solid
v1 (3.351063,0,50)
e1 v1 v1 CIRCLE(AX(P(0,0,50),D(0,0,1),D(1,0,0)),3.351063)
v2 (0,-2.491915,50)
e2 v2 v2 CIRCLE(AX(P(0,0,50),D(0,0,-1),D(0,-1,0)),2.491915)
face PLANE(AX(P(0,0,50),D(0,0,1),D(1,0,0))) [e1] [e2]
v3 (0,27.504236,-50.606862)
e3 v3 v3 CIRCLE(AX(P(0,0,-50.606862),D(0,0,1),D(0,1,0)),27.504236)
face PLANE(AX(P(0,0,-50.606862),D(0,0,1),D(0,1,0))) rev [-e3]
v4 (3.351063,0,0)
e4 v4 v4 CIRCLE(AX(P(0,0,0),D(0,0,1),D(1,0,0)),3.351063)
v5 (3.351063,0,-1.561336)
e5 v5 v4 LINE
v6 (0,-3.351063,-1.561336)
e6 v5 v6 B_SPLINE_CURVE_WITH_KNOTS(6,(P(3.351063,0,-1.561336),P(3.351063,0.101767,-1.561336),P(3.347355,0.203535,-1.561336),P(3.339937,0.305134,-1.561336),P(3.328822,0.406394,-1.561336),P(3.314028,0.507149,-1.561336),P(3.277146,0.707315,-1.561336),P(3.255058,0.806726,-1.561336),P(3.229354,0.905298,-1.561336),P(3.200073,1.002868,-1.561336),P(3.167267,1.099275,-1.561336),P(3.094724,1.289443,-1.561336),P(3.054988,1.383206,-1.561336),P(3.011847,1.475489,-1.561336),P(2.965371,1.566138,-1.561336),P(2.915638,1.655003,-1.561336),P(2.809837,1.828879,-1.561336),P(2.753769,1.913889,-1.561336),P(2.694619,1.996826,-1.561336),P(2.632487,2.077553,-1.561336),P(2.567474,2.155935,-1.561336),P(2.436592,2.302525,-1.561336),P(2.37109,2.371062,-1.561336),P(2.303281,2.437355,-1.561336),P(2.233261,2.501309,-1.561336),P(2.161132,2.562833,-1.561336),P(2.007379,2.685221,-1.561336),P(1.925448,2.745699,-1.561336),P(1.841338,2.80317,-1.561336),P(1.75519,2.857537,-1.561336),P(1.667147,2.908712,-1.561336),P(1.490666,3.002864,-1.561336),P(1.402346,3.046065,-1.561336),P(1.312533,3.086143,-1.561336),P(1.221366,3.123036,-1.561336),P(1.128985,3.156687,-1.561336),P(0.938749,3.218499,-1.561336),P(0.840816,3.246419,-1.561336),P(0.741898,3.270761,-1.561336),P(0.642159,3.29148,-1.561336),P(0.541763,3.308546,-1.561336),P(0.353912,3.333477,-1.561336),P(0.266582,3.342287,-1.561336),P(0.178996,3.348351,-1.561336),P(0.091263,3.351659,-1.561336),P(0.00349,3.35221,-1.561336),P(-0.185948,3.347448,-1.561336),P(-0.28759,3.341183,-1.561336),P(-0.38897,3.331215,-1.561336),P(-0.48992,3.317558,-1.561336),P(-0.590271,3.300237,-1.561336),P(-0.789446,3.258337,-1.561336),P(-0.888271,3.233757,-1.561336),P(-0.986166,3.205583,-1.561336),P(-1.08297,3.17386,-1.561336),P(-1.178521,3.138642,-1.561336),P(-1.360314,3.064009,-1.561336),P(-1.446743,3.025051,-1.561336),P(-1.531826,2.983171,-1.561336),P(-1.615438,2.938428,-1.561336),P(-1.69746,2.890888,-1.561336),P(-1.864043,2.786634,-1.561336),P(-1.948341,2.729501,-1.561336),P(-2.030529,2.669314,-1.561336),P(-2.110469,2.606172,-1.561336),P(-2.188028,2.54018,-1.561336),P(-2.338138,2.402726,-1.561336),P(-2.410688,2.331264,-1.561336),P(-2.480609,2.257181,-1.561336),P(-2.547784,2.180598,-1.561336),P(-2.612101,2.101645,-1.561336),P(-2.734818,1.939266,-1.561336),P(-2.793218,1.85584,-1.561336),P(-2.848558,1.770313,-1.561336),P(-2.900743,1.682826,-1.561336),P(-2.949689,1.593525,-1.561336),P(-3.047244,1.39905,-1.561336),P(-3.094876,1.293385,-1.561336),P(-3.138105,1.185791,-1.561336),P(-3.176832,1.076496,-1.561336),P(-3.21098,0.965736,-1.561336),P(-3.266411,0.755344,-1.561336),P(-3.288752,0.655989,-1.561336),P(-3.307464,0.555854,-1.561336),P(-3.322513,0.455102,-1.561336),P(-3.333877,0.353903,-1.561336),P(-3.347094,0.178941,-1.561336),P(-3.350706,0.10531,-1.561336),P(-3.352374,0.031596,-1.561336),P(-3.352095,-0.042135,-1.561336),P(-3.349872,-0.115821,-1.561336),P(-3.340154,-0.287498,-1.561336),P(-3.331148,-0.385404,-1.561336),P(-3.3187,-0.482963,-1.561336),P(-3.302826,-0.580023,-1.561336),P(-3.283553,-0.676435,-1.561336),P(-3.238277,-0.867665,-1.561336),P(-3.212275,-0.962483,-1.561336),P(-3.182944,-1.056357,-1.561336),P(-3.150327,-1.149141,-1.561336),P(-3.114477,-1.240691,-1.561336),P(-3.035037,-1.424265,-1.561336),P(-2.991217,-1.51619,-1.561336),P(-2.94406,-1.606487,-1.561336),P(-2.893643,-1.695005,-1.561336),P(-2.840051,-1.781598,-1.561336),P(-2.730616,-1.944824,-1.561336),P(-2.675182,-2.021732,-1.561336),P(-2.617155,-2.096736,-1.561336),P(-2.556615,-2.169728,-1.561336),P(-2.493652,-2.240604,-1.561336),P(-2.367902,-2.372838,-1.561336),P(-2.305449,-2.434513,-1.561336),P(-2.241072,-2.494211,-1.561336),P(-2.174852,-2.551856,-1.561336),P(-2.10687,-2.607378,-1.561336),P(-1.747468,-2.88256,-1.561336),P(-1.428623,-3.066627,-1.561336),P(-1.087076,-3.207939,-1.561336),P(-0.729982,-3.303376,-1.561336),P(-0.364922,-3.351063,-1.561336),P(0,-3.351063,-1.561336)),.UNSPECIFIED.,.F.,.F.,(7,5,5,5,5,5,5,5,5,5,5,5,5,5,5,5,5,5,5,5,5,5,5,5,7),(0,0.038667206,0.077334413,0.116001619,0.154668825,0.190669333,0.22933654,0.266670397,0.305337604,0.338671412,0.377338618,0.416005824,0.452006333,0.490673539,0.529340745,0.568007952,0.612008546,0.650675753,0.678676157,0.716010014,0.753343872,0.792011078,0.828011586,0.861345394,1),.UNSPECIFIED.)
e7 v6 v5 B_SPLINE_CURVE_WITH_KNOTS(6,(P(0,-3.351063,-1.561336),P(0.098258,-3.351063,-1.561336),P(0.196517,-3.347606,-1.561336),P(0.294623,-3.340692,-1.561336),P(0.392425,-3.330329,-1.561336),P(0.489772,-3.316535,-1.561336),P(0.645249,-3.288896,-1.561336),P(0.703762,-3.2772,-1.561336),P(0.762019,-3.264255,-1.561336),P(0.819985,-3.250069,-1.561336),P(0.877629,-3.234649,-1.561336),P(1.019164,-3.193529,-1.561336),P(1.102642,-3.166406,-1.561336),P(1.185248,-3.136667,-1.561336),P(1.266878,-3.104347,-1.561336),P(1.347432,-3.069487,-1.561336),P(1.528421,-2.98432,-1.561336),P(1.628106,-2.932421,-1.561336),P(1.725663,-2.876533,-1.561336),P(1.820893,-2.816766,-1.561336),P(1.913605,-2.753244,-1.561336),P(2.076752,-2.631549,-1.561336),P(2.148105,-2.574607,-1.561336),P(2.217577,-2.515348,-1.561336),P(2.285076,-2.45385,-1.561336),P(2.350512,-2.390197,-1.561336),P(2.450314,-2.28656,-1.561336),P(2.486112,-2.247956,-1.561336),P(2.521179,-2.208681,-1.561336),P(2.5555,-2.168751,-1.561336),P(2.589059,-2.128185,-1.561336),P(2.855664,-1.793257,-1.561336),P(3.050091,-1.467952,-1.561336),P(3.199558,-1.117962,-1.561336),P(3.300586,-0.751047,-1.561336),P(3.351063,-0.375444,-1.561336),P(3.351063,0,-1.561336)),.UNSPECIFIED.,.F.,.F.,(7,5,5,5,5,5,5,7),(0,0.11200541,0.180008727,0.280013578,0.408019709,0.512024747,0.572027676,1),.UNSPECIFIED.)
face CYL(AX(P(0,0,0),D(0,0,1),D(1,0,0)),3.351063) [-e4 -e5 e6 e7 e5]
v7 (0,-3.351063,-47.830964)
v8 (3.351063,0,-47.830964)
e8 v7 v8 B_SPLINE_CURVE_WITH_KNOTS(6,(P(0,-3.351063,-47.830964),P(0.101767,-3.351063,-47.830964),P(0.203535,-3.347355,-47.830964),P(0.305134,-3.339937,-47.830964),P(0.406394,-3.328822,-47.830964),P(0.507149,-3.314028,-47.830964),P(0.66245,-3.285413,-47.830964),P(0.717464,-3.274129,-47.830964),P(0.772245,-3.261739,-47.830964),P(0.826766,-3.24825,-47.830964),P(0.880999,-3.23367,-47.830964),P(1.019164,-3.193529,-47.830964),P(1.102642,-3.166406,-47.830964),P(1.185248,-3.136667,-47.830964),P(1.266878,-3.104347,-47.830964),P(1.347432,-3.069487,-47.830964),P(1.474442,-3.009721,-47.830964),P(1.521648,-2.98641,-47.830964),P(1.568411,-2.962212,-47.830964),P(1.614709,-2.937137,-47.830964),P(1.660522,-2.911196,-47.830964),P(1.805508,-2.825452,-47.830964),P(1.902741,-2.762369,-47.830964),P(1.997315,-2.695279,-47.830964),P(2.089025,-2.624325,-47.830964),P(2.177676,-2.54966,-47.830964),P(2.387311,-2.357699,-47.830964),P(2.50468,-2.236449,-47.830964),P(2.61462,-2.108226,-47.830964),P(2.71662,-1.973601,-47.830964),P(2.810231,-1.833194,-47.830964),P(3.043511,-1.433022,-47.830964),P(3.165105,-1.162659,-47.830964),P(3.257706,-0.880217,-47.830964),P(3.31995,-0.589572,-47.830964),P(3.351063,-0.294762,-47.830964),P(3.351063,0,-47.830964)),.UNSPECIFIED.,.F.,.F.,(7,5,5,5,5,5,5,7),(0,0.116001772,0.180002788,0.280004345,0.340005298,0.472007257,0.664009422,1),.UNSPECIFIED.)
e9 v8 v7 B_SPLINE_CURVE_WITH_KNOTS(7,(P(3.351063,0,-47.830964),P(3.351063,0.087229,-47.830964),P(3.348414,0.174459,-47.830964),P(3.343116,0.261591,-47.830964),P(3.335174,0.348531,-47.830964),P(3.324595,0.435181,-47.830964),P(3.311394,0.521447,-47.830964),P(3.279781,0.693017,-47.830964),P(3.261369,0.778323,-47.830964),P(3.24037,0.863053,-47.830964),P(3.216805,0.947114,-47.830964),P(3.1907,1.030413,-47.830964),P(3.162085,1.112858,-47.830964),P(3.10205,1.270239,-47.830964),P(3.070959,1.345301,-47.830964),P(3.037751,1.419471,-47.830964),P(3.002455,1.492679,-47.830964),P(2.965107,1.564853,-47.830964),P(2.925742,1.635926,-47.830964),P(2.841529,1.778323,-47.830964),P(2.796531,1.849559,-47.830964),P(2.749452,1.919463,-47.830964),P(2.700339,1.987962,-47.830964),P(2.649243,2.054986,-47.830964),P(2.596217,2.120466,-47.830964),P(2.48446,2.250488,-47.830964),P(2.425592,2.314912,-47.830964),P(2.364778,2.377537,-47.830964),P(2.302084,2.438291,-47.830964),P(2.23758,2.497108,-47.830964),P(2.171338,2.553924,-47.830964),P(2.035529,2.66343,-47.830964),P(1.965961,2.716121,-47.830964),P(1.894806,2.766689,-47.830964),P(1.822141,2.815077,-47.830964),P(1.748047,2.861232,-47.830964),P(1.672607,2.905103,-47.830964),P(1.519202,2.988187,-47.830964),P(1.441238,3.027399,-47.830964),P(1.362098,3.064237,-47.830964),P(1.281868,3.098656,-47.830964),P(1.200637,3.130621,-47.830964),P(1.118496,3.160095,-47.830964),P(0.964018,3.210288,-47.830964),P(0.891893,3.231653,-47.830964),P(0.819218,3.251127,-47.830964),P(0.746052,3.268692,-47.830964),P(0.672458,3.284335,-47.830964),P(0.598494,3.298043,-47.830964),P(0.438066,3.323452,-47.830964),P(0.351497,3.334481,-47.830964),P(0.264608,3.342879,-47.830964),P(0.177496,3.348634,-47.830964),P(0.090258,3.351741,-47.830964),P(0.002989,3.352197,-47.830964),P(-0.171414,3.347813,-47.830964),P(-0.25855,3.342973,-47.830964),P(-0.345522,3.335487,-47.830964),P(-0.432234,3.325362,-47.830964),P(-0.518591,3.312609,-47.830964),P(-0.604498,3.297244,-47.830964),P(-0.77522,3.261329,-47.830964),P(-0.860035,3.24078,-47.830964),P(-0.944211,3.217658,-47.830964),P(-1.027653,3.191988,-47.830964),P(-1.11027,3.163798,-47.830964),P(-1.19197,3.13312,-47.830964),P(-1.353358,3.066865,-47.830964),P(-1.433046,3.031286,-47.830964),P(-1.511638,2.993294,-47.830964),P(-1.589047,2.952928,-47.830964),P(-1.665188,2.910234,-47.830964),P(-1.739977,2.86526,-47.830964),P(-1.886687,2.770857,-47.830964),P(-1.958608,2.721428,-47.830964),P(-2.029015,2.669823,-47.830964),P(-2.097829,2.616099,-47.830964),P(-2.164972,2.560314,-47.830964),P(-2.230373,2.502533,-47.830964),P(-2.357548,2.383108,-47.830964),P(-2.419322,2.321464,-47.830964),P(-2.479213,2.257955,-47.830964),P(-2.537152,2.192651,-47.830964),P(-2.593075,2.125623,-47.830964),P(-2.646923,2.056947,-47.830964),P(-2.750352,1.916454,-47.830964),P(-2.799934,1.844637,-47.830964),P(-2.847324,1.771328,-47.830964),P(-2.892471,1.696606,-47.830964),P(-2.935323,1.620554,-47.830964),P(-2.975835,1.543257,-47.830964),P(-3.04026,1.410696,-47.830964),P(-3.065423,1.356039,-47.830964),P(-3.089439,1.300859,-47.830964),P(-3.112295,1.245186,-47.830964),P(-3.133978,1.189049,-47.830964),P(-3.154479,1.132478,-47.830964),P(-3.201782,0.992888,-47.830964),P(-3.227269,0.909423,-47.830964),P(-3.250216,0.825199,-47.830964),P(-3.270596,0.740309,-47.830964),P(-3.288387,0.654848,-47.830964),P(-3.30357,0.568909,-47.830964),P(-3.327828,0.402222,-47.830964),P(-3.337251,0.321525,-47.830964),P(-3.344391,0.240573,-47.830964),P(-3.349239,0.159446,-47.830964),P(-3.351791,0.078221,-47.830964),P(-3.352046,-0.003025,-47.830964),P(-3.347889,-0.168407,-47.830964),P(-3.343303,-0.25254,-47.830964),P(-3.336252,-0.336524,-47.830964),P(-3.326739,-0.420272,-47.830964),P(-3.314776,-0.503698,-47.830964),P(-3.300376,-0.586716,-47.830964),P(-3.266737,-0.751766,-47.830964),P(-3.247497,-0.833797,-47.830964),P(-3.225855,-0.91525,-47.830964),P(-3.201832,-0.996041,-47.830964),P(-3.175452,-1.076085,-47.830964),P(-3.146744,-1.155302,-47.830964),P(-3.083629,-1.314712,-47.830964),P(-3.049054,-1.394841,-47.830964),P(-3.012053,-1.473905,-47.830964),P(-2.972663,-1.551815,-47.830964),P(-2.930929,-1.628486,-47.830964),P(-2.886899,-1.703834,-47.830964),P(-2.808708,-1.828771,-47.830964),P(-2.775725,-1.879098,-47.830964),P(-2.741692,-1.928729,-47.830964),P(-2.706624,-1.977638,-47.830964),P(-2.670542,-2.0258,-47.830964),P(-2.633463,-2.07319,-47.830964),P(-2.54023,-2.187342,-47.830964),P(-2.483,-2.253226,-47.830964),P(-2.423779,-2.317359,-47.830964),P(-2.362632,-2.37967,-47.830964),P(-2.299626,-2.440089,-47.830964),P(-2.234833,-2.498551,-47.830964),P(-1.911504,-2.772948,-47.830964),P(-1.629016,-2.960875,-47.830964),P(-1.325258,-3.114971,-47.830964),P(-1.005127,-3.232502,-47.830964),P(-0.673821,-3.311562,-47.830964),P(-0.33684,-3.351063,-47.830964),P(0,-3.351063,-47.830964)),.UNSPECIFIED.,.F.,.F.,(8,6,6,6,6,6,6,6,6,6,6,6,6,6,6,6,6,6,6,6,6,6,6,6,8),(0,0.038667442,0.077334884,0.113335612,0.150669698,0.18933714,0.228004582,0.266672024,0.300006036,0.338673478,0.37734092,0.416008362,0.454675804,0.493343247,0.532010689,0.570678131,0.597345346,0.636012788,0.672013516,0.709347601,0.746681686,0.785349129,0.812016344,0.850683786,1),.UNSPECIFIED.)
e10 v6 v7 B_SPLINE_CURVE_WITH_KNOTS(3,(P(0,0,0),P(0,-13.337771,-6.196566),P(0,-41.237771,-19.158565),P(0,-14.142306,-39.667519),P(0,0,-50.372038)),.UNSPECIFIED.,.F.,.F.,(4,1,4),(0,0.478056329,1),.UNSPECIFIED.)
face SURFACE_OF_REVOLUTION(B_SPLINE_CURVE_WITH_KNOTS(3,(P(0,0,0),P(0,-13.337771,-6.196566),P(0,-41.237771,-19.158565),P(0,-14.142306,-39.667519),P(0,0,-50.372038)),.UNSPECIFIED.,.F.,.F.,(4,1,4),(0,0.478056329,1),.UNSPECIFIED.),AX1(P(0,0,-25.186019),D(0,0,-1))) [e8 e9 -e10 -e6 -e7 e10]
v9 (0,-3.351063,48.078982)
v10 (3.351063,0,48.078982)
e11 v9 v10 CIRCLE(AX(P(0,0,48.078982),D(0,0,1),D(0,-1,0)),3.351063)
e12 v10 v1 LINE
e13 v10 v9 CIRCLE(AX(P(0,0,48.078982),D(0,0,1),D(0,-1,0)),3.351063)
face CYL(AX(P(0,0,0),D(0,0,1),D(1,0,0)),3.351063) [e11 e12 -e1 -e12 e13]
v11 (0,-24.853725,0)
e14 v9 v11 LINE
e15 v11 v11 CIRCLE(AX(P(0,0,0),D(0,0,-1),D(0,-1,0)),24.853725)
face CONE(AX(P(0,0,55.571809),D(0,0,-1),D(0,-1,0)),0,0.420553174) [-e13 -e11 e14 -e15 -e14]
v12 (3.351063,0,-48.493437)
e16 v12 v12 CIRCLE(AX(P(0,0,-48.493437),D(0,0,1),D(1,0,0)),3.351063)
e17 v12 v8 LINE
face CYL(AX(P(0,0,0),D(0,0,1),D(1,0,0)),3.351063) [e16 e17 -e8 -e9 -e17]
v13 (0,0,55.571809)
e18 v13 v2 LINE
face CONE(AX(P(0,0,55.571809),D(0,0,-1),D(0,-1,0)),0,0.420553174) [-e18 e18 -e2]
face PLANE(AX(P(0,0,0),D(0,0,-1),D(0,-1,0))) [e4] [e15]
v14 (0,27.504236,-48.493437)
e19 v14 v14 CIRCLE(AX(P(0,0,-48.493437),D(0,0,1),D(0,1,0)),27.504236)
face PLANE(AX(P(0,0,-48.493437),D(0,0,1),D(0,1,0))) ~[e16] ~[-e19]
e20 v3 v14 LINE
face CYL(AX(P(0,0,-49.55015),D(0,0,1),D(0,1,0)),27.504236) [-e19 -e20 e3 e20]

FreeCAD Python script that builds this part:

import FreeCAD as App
import Part
import Sketcher

V = App.Vector

doc = App.newDocument("Part")
params = doc.addObject("Spreadsheet::Sheet", "Params")
for row, (alias, value) in enumerate([
    ("pad1_length", "100 mm"),
    ("revolution_angle", "360 deg"),
    ("revolution2_angle", "360 deg"),
    ("revolution3_angle", "360 deg"),
], start=1):
    params.set(f"A{row}", alias)
    params.set(f"B{row}", "=" + value)
    params.setAlias(f"B{row}", alias)

body = doc.addObject("PartDesign::Body", "Body")

# Sketch on XY plane
sketch1 = body.newObject("Sketcher::SketchObject", "Sketch")
sketch1.AttachmentSupport = (doc.getObject("XY_Plane"), [""])
sketch1.MapMode = "FlatFace"
sketch1.addGeometry(Part.Circle(V(0, 0, 0), V(0, 0, 1), 3.4), False)
sketch1.addConstraint(Sketcher.Constraint("Coincident", 0, 3, -1, 1))
sketch1.addConstraint(Sketcher.Constraint("Diameter", 0, 6.702127))
pad1 = body.newObject("PartDesign::Pad", "Pad")
pad1.Profile = sketch1
pad1.setExpression("Length", "Params.pad1_length")
pad1.Midplane = True

# Sketch on YZ plane
sketch2 = body.newObject("Sketcher::SketchObject", "Sketch001")
sketch2.AttachmentSupport = (doc.getObject("YZ_Plane"), [""])
sketch2.MapMode = "FlatFace"
sketch2.addGeometry(Part.LineSegment(V(0, 0, 0), V(0, 56, 0)), False)
sketch2.addGeometry(Part.LineSegment(V(0, 56, 0), V(-25, 0, 0)), False)
sketch2.addGeometry(Part.LineSegment(V(-25, 0, 0), V(0, 0, 0)), False)
sketch2.addConstraint(Sketcher.Constraint("Coincident", 0, 2, 1, 1))
sketch2.addConstraint(Sketcher.Constraint("Coincident", 1, 2, 2, 1))
sketch2.addConstraint(Sketcher.Constraint("Coincident", 2, 2, 0, 1))
sketch2.addConstraint(Sketcher.Constraint("Vertical", 0))
sketch2.addConstraint(Sketcher.Constraint("Horizontal", 2))
sketch2.addConstraint(Sketcher.Constraint("Coincident", 2, 2, -1, 1))
sketch2.addConstraint(Sketcher.Constraint("DistanceY", 0, 1, 0, 2, 55.571809))
sketch2.addConstraint(Sketcher.Constraint("Distance", 1, 60.87638))
revolution = body.newObject("PartDesign::Revolution", "Revolution")
revolution.Profile = sketch2
revolution.ReferenceAxis = (sketch2, ["V_Axis"])
revolution.setExpression("Angle", "Params.revolution_angle")

# Sketch on YZ plane
sketch3 = body.newObject("Sketcher::SketchObject", "Sketch002")
sketch3.AttachmentSupport = (doc.getObject("YZ_Plane"), [""])
sketch3.MapMode = "FlatFace"
sketch3.addGeometry(Part.LineSegment(V(0, -50.372038, 0), V(0, 0, 0)), False)
sketch3.addGeometry(Part.BSplineCurve([V(0, 0, 0), V(-13.337771, -6.196566, 0), V(-41.237771, -19.158565, 0), V(-14.142306, -39.667519, 0), V(0, -50.372038, 0)], [4, 1, 4], [0, 0.478056329, 1], False, 3, [1, 1, 1, 1, 1], False), False)
sketch3.addConstraint(Sketcher.Constraint("Block", 1))
sketch3.addConstraint(Sketcher.Constraint("Coincident", 0, 1, 1, 2))
sketch3.addConstraint(Sketcher.Constraint("Coincident", 1, 1, 0, 2))
revolution2 = body.newObject("PartDesign::Revolution", "Revolution001")
revolution2.Profile = sketch3
revolution2.ReferenceAxis = (sketch3, ["V_Axis"])
revolution2.setExpression("Angle", "Params.revolution2_angle")

# Sketch on YZ plane
sketch4 = body.newObject("Sketcher::SketchObject", "Sketch003")
sketch4.AttachmentSupport = (doc.getObject("YZ_Plane"), [""])
sketch4.MapMode = "FlatFace"
sketch4.addGeometry(Part.LineSegment(V(0, -48.5, 0), V(0, -50.6, 0)), False)
sketch4.addGeometry(Part.LineSegment(V(0, -50.6, 0), V(27.5, -50.6, 0)), False)
sketch4.addGeometry(Part.LineSegment(V(27.5, -50.6, 0), V(27.5, -48.5, 0)), False)
sketch4.addGeometry(Part.LineSegment(V(27.5, -48.5, 0), V(0, -48.5, 0)), False)
sketch4.addConstraint(Sketcher.Constraint("Coincident", 0, 2, 1, 1))
sketch4.addConstraint(Sketcher.Constraint("Coincident", 1, 2, 2, 1))
sketch4.addConstraint(Sketcher.Constraint("Coincident", 2, 2, 3, 1))
sketch4.addConstraint(Sketcher.Constraint("Coincident", 3, 2, 0, 1))
sketch4.addConstraint(Sketcher.Constraint("Vertical", 0))
sketch4.addConstraint(Sketcher.Constraint("Horizontal", 1))
sketch4.addConstraint(Sketcher.Constraint("Vertical", 2))
sketch4.addConstraint(Sketcher.Constraint("Horizontal", 3))
sketch4.addConstraint(Sketcher.Constraint("PointOnObject", 0, 2, -2))
sketch4.addConstraint(Sketcher.Constraint("DistanceX", 1, 1, 1, 2, 27.504236))
sketch4.addConstraint(Sketcher.Constraint("DistanceY", 0, 2, 0, 1, 2.113424))
sketch4.addConstraint(Sketcher.Constraint("DistanceY", 0, 2, -1, 1, 50.606862))
revolution3 = body.newObject("PartDesign::Revolution", "Revolution002")
revolution3.Profile = sketch4
revolution3.ReferenceAxis = (sketch4, ["V_Axis"])
revolution3.setExpression("Angle", "Params.revolution3_angle")

doc.recompute()
